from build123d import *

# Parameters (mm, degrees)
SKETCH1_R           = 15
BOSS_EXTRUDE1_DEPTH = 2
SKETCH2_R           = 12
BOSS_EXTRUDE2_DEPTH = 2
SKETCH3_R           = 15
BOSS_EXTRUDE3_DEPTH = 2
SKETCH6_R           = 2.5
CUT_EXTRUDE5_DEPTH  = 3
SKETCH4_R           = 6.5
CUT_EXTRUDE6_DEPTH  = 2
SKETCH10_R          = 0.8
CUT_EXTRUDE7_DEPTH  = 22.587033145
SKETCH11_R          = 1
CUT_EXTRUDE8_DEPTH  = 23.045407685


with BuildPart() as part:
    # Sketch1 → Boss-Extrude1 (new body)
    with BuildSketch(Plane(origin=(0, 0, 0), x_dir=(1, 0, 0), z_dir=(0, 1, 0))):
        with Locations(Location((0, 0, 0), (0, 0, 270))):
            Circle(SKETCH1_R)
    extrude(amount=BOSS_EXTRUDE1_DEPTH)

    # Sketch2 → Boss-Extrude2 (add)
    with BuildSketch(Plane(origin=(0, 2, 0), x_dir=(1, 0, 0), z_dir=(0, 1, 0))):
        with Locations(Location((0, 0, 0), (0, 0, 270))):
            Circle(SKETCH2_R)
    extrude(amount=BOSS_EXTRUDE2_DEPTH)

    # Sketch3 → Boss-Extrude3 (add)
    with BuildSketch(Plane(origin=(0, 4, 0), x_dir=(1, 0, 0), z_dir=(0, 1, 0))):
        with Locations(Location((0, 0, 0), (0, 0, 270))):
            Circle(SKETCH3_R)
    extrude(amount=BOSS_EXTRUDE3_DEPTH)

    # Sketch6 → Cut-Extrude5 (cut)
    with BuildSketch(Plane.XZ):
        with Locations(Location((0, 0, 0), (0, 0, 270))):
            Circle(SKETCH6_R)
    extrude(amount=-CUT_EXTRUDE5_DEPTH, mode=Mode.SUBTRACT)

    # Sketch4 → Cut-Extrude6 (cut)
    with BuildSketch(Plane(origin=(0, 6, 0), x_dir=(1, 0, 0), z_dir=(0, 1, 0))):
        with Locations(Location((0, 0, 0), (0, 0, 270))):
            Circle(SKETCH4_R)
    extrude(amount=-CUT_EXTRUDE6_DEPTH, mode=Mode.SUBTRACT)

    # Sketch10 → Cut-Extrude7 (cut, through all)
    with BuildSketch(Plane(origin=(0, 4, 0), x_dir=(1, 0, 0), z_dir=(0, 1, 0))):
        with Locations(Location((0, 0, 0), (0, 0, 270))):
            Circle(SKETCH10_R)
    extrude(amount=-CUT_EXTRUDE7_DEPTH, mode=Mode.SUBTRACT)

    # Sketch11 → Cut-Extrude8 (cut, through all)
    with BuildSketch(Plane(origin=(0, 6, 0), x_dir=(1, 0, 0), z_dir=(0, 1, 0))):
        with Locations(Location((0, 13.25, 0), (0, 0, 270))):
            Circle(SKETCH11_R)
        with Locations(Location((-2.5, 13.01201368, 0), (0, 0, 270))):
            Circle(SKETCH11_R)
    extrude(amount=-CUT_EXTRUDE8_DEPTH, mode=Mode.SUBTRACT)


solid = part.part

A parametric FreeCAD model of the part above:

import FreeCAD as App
import Part
import Sketcher

doc = App.newDocument("Part")
body = doc.addObject("PartDesign::Body", "Body")

sketch1 = body.newObject("Sketcher::SketchObject", "Sketch")
sketch1.AttachmentSupport = (doc.getObject("XZ_Plane"), [""])
sketch1.MapMode = "FlatFace"
sketch1.addGeometry(Part.Circle(App.Vector(0, 0, 0), App.Vector(0, 0, 1), 15), False)
sketch1.addConstraint([
    Sketcher.Constraint("Coincident", 0, 3, -1, 1),
    Sketcher.Constraint("Diameter", 0, 30.0),
])
pad1 = body.newObject("PartDesign::Pad", "Pad")
pad1.Profile = sketch1
pad1.Length = 2
pad1.Reversed = True

sketch2 = body.newObject("Sketcher::SketchObject", "Sketch001")
sketch2.AttachmentSupport = (doc.getObject("XZ_Plane"), [""])
sketch2.MapMode = "FlatFace"
sketch2.AttachmentOffset = App.Placement(App.Vector(0, 0, -2), App.Rotation())
sketch2.addGeometry(Part.Circle(App.Vector(0, 0, 0), App.Vector(0, 0, 1), 12), False)
sketch2.addConstraint([
    Sketcher.Constraint("Coincident", 0, 3, -1, 1),
    Sketcher.Constraint("Diameter", 0, 24.0),
])
pad2 = body.newObject("PartDesign::Pad", "Pad001")
pad2.Profile = sketch2
pad2.Length = 2
pad2.Reversed = True

sketch3 = body.newObject("Sketcher::SketchObject", "Sketch002")
sketch3.AttachmentSupport = (doc.getObject("XZ_Plane"), [""])
sketch3.MapMode = "FlatFace"
sketch3.AttachmentOffset = App.Placement(App.Vector(0, 0, -4), App.Rotation())
sketch3.addGeometry(Part.Circle(App.Vector(0, 0, 0), App.Vector(0, 0, 1), 15), False)
sketch3.addConstraint([
    Sketcher.Constraint("Coincident", 0, 3, -1, 1),
    Sketcher.Constraint("Diameter", 0, 30.0),
])
pad3 = body.newObject("PartDesign::Pad", "Pad002")
pad3.Profile = sketch3
pad3.Length = 2
pad3.Reversed = True

sketch4 = body.newObject("Sketcher::SketchObject", "Sketch003")
sketch4.AttachmentSupport = (doc.getObject("XZ_Plane"), [""])
sketch4.MapMode = "FlatFace"
sketch4.addGeometry(Part.Circle(App.Vector(0, 0, 0), App.Vector(0, 0, 1), 2.5), False)
sketch4.addConstraint([
    Sketcher.Constraint("Coincident", 0, 3, -1, 1),
    Sketcher.Constraint("Diameter", 0, 5.0),
])
pocket1 = body.newObject("PartDesign::Pocket", "Pocket")
pocket1.Profile = sketch4
pocket1.Length = 3

sketch5 = body.newObject("Sketcher::SketchObject", "Sketch004")
sketch5.AttachmentSupport = (doc.getObject("XZ_Plane"), [""])
sketch5.MapMode = "FlatFace"
sketch5.AttachmentOffset = App.Placement(App.Vector(0, 0, -6), App.Rotation())
sketch5.addGeometry(Part.Circle(App.Vector(0, 0, 0), App.Vector(0, 0, 1), 6), False)
sketch5.addConstraint([
    Sketcher.Constraint("Coincident", 0, 3, -1, 1),
    Sketcher.Constraint("Diameter", 0, 13.0),
])
pocket2 = body.newObject("PartDesign::Pocket", "Pocket001")
pocket2.Profile = sketch5
pocket2.Length = 2
pocket2.Reversed = True

sketch6 = body.newObject("Sketcher::SketchObject", "Sketch005")
sketch6.AttachmentSupport = (doc.getObject("XZ_Plane"), [""])
sketch6.MapMode = "FlatFace"
sketch6.AttachmentOffset = App.Placement(App.Vector(0, 0, -4), App.Rotation())
sketch6.addGeometry(Part.Circle(App.Vector(0, 0, 0), App.Vector(0, 0, 1), 0.8), False)
sketch6.addConstraint([
    Sketcher.Constraint("Coincident", 0, 3, -1, 1),
    Sketcher.Constraint("Diameter", 0, 1.6),
])
pocket3 = body.newObject("PartDesign::Pocket", "Pocket002")
pocket3.Profile = sketch6
pocket3.Type = "ThroughAll"
pocket3.Reversed = True

sketch7 = body.newObject("Sketcher::SketchObject", "Sketch006")
sketch7.AttachmentSupport = (doc.getObject("XZ_Plane"), [""])
sketch7.MapMode = "FlatFace"
sketch7.AttachmentOffset = App.Placement(App.Vector(0, 0, -6), App.Rotation())
sketch7.addGeometry([
    Part.Circle(App.Vector(0, -13.2, 0), App.Vector(0, 0, 1), 1),
    Part.Circle(App.Vector(-2.5, -13, 0), App.Vector(0, 0, 1), 1),
], False)
sketch7.addConstraint([
    Sketcher.Constraint("Equal", 0, 1),
    Sketcher.Constraint("PointOnObject", 0, 3, -2),
    Sketcher.Constraint("Diameter", 0, 2.0),
    Sketcher.Constraint("DistanceX", 1, 3, -1, 1, 2.5),
    Sketcher.Constraint("DistanceY", 0, 3, -1, 1, 13.25),
    Sketcher.Constraint("DistanceY", 1, 3, -1, 1, 13.012014),
])
pocket4 = body.newObject("PartDesign::Pocket", "Pocket003")
pocket4.Profile = sketch7
pocket4.Type = "ThroughAll"
pocket4.Reversed = True

doc.recompute()
